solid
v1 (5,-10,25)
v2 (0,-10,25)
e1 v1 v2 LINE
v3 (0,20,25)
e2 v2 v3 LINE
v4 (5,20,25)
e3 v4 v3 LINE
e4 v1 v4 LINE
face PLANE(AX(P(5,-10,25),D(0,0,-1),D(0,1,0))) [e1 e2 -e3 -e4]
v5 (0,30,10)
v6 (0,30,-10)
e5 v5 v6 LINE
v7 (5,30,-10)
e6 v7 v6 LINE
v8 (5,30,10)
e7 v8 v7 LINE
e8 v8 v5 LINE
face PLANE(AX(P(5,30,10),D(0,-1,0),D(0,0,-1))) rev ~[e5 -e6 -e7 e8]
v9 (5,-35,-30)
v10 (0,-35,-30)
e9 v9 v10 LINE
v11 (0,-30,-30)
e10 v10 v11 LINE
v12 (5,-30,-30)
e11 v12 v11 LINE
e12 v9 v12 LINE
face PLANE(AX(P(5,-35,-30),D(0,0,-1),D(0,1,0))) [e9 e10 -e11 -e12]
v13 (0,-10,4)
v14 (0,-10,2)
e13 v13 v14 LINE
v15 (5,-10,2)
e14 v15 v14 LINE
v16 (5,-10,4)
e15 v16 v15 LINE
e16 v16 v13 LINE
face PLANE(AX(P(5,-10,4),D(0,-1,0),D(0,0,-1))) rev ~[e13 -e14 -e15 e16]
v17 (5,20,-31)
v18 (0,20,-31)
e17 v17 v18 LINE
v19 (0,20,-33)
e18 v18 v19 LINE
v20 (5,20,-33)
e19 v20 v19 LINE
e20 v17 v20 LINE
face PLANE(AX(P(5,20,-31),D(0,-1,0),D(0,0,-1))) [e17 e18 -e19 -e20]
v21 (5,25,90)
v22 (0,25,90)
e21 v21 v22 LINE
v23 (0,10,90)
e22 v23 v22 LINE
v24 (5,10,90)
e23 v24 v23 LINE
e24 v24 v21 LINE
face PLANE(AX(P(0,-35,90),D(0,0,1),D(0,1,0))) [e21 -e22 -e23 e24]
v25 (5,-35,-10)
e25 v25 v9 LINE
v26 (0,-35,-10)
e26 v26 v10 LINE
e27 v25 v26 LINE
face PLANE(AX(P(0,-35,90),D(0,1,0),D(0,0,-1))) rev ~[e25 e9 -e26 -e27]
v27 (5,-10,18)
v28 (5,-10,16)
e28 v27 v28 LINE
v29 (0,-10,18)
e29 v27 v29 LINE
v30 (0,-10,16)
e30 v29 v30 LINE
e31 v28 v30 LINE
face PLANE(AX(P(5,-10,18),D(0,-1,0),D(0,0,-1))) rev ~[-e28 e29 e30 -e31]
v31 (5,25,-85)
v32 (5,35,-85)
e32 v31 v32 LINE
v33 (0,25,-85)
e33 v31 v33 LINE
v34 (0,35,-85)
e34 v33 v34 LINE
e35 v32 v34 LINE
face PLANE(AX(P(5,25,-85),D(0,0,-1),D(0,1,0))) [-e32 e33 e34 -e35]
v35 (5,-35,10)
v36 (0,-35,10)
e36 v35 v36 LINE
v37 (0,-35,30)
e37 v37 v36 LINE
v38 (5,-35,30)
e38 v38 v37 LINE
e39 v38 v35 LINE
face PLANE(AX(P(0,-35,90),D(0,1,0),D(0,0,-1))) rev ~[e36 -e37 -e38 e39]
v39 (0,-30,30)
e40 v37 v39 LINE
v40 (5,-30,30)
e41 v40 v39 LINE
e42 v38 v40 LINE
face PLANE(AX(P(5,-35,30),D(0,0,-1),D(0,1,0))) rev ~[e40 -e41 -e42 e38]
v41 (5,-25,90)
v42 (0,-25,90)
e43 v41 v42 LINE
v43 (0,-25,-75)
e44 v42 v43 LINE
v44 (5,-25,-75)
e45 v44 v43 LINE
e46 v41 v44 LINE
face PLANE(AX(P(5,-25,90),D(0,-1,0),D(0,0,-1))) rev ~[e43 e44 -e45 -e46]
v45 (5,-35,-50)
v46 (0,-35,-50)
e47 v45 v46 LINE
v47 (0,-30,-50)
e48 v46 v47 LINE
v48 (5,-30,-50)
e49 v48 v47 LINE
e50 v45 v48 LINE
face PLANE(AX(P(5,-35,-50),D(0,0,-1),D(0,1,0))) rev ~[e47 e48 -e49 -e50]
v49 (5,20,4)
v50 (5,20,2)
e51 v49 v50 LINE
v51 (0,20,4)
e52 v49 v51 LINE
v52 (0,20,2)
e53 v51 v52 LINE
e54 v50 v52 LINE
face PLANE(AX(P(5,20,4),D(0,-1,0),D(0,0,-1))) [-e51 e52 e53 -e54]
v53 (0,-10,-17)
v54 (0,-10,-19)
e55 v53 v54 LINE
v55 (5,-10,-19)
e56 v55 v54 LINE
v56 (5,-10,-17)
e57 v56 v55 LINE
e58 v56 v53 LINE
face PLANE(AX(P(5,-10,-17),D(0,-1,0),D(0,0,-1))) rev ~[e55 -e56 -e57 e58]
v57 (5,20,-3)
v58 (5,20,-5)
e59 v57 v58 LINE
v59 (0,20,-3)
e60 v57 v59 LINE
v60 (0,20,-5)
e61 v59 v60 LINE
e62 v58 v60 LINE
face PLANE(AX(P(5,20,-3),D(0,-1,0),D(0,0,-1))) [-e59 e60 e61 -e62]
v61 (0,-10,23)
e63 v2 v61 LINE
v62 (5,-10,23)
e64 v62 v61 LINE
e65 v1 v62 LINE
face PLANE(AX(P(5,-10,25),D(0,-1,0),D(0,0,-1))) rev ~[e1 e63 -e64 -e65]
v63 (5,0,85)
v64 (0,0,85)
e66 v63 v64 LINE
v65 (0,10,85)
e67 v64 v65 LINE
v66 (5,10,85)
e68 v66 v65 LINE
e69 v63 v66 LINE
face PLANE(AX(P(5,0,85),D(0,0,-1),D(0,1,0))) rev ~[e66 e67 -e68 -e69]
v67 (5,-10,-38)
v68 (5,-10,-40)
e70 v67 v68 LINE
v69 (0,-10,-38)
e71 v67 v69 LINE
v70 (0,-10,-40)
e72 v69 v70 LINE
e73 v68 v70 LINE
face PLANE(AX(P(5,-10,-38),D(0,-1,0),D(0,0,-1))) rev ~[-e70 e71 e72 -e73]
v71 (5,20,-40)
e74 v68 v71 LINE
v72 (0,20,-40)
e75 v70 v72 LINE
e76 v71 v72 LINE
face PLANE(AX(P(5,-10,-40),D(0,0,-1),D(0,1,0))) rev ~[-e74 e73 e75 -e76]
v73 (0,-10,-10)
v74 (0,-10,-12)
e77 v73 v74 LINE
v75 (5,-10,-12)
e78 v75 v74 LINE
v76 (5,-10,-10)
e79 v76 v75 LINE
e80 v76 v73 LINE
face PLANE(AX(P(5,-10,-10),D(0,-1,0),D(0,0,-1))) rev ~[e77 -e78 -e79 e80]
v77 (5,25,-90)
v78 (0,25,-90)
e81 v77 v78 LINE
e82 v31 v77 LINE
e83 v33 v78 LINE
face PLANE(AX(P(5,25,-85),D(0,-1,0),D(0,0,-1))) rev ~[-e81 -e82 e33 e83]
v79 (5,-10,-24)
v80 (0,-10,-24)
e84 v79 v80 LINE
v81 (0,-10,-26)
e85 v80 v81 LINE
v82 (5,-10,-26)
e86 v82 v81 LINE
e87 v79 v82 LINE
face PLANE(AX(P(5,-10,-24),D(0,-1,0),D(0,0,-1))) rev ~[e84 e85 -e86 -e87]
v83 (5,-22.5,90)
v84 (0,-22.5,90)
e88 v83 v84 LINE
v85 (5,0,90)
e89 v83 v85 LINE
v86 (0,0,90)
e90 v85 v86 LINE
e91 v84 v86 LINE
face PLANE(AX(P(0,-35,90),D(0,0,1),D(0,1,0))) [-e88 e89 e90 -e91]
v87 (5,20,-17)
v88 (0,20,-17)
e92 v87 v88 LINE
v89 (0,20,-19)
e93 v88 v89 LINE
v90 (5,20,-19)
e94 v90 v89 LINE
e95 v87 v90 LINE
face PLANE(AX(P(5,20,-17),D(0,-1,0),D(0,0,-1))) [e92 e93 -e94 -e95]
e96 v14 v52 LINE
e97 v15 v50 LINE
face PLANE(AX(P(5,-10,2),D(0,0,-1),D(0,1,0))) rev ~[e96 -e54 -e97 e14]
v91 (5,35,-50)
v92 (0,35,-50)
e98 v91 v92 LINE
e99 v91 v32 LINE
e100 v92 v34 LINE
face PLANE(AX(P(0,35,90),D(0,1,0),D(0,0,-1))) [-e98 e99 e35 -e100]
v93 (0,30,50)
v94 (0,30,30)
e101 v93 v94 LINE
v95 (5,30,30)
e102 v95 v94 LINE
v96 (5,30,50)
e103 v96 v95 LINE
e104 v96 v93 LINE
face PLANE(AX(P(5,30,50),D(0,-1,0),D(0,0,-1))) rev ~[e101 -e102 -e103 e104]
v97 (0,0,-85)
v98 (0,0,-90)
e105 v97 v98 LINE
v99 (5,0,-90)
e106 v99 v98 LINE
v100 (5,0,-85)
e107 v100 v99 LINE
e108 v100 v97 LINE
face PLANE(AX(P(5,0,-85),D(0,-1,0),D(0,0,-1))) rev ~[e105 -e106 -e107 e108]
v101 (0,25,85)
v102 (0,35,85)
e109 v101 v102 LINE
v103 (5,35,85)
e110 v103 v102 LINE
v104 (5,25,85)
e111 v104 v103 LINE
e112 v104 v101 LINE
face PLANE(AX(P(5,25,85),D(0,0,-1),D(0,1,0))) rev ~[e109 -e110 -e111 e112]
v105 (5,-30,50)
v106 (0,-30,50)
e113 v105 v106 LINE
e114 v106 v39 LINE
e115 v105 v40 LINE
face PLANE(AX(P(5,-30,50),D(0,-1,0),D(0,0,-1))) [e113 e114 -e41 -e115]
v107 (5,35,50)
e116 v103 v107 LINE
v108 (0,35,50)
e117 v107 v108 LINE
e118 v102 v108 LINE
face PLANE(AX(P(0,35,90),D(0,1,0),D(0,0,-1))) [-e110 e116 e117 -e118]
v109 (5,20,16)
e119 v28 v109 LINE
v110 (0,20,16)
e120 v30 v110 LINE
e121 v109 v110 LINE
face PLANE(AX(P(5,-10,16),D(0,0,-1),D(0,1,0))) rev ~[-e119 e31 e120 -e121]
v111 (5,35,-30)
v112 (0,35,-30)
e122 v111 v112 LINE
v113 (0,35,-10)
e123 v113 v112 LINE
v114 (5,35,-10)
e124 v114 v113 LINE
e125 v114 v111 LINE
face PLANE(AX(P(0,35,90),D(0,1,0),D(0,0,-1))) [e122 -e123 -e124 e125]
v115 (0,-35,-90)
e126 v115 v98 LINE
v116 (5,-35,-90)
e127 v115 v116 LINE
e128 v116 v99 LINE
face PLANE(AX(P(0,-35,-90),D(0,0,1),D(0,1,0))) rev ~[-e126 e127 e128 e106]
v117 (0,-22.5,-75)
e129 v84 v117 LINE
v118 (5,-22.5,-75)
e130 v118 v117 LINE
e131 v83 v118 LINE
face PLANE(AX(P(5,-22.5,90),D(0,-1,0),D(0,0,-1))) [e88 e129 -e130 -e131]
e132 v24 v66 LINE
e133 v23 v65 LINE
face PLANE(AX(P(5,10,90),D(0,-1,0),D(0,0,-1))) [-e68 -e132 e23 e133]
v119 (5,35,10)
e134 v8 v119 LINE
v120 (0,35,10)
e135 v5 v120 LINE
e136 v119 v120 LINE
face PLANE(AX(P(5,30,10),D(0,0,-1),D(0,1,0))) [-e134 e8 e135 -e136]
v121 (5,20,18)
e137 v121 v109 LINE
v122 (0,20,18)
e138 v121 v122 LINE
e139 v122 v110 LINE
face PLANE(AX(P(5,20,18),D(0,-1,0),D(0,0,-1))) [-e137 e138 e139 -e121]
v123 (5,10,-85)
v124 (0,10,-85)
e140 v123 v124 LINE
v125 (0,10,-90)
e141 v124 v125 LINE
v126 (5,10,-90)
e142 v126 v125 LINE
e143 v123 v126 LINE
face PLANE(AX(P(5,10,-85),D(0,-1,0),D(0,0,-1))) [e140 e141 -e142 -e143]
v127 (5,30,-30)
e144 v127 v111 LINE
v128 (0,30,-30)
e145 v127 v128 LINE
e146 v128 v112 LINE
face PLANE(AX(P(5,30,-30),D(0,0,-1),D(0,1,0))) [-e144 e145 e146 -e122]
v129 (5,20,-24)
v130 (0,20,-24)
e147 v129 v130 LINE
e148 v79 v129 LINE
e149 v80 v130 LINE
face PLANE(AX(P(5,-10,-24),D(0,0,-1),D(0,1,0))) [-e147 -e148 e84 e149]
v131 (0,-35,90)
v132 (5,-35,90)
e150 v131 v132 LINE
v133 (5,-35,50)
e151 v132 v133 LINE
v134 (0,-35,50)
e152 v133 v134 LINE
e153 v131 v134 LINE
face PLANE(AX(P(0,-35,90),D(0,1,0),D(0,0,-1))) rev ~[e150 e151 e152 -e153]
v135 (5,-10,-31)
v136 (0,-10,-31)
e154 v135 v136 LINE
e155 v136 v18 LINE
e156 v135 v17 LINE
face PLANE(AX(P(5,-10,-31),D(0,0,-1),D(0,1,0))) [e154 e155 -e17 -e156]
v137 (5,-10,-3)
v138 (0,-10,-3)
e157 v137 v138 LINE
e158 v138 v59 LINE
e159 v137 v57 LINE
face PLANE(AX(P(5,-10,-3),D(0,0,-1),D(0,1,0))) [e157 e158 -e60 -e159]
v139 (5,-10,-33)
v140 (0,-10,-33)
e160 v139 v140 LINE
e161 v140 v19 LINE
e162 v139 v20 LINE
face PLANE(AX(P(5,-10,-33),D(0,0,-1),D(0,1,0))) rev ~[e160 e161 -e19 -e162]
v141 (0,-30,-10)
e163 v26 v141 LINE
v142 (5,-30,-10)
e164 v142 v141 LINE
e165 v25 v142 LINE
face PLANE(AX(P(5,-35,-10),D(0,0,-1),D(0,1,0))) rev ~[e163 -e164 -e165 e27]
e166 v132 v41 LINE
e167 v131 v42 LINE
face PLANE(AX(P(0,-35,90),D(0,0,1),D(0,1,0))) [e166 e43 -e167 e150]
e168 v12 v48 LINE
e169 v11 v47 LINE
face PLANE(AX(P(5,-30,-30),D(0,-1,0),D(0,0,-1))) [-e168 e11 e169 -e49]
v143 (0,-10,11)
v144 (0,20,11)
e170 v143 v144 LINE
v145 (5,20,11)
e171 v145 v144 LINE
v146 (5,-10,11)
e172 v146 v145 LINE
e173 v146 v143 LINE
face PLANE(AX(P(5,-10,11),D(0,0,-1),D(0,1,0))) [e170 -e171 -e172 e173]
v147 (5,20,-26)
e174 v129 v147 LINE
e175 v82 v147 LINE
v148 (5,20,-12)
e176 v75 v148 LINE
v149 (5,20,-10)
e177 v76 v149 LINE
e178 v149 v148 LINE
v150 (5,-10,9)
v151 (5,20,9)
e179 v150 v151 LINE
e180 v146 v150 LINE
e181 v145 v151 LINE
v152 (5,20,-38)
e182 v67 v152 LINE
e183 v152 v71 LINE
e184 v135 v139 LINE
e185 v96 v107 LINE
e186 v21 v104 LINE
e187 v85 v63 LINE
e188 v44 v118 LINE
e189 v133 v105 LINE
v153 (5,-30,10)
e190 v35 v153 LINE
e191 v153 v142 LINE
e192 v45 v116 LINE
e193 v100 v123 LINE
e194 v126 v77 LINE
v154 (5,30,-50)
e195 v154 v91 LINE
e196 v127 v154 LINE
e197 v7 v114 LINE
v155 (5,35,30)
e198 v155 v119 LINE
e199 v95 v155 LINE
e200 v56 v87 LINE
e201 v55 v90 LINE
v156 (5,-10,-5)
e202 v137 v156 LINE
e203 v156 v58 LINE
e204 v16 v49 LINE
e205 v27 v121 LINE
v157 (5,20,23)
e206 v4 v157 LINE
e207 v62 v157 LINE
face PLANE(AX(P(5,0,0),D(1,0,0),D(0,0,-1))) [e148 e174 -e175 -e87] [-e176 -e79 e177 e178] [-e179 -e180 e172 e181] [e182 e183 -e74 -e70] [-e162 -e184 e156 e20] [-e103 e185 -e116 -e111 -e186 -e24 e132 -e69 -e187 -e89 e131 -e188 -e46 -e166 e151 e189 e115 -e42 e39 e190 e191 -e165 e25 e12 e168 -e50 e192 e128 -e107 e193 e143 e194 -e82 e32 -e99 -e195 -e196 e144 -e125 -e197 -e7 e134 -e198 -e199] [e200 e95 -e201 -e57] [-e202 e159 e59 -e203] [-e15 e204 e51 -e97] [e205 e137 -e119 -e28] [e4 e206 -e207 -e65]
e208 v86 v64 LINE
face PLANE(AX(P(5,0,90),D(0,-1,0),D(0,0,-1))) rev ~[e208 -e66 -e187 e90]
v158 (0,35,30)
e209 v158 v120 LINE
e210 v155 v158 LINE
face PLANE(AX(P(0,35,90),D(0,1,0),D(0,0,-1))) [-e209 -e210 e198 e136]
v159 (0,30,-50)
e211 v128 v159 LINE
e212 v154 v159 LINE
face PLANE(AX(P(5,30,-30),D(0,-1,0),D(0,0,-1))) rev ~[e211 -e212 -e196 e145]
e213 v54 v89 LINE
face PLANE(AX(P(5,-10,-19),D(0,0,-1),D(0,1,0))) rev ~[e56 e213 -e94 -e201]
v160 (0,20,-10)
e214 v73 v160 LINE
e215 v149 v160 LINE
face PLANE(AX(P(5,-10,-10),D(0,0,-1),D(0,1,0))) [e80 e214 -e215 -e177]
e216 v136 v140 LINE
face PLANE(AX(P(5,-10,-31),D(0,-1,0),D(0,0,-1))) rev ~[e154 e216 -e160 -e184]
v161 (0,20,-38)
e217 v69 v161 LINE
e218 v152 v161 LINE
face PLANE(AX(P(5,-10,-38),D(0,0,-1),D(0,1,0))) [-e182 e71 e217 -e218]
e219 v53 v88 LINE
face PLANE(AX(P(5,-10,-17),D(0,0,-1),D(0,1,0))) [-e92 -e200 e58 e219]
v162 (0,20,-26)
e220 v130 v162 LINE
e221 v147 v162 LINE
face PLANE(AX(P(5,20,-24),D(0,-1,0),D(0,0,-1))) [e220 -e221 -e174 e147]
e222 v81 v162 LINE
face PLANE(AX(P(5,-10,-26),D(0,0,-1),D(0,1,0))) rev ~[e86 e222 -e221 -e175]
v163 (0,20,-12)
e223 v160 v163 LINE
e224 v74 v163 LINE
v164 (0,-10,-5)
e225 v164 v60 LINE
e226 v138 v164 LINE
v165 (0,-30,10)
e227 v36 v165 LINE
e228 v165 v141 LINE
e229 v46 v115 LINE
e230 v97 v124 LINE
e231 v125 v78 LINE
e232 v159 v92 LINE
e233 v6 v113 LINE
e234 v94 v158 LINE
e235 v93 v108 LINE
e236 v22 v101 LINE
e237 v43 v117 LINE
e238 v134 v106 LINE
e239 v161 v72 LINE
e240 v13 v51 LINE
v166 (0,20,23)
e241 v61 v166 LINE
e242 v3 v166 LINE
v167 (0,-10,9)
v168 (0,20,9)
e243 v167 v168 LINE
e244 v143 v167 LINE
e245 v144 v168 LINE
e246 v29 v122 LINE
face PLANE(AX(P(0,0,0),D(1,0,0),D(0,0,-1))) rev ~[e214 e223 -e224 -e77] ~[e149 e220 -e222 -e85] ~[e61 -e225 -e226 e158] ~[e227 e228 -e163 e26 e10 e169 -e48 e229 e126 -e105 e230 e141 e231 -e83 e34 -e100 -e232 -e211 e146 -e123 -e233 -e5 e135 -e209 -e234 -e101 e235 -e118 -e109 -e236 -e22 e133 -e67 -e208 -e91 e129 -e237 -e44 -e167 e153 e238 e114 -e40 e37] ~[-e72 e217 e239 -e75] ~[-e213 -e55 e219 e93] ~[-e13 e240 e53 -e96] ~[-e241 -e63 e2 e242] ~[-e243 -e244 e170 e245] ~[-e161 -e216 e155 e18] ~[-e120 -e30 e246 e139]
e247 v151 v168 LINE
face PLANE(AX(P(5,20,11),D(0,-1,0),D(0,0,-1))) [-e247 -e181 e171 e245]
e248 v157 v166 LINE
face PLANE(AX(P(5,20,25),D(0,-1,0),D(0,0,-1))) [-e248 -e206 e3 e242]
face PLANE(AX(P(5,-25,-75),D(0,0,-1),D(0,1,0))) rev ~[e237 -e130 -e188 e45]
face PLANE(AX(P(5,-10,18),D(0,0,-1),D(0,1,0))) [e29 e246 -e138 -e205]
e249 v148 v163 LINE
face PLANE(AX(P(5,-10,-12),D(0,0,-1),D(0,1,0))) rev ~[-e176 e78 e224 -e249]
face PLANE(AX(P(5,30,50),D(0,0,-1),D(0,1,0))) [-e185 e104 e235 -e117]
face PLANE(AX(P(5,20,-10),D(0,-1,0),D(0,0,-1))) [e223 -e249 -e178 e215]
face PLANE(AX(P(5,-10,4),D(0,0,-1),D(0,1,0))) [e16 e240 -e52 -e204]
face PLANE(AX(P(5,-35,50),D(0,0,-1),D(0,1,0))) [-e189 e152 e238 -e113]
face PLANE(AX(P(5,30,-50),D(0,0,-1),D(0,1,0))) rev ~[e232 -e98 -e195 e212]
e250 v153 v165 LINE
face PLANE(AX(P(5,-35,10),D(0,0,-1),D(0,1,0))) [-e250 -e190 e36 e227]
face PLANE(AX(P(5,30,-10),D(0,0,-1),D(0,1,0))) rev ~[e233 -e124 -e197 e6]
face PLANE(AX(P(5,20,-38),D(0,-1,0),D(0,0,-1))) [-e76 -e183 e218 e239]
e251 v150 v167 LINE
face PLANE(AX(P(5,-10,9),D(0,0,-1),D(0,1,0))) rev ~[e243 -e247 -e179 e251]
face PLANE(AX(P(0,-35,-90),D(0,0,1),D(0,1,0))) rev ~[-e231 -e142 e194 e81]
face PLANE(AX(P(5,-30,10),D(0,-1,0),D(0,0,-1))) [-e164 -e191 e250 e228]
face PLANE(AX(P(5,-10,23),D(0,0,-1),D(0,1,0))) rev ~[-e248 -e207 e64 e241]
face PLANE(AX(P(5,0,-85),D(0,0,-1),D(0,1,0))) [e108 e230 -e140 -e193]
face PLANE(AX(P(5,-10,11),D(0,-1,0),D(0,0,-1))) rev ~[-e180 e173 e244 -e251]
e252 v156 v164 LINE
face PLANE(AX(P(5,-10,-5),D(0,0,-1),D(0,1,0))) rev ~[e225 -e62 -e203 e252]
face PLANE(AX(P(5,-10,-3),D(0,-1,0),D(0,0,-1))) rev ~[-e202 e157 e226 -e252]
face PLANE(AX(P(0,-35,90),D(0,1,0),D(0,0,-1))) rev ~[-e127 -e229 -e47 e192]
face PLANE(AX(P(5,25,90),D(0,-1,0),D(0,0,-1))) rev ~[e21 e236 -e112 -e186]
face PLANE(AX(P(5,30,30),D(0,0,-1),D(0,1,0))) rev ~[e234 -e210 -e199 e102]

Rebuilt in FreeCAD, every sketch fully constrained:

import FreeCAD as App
import Part
import Sketcher

doc = App.newDocument("Part")
params = doc.addObject("Spreadsheet::Sheet", "Params")
for row, (alias, value) in enumerate([
    ("sketch1_width", "70 mm"),
    ("sketch1_height", "180 mm"),
    ("pad1_length", "5 mm"),
    ("sketch2_height", "165 mm"),
    ("sketch2_width", "2.5 mm"),
    ("pocket1_length", "5 mm"),
    ("sketch3_width", "10 mm"),
    ("sketch3_width2", "5 mm"),
    ("sketch3_height", "20 mm"),
    ("pocket2_length", "5 mm"),
    ("sketch4_width", "30 mm"),
    ("sketch4_height", "2 mm"),
    ("pocket3_length", "5 mm"),
], start=1):
    params.set(f"A{row}", alias)
    params.set(f"B{row}", "=" + value)
    params.setAlias(f"B{row}", alias)

body = doc.addObject("PartDesign::Body", "Body")

sketch1 = body.newObject("Sketcher::SketchObject", "Sketch")
sketch1.AttachmentSupport = (doc.getObject("YZ_Plane"), [""])
sketch1.MapMode = "FlatFace"
sketch1.addGeometry(Part.LineSegment(App.Vector(35, 90, 0), App.Vector(-35, 90, 0)), False)
sketch1.addGeometry(Part.LineSegment(App.Vector(-35, 90, 0), App.Vector(-35, -90, 0)), False)
sketch1.addGeometry(Part.LineSegment(App.Vector(-35, -90, 0), App.Vector(35, -90, 0)), False)
sketch1.addGeometry(Part.LineSegment(App.Vector(35, -90, 0), App.Vector(35, 90, 0)), False)
sketch1.addConstraint(Sketcher.Constraint("Coincident", 0, 2, 1, 1))
sketch1.addConstraint(Sketcher.Constraint("Coincident", 1, 2, 2, 1))
sketch1.addConstraint(Sketcher.Constraint("Coincident", 2, 2, 3, 1))
sketch1.addConstraint(Sketcher.Constraint("Coincident", 3, 2, 0, 1))
sketch1.addConstraint(Sketcher.Constraint("Horizontal", 0))
sketch1.addConstraint(Sketcher.Constraint("Vertical", 1))
sketch1.addConstraint(Sketcher.Constraint("Horizontal", 2))
sketch1.addConstraint(Sketcher.Constraint("Vertical", 3))
sketch1.addConstraint(Sketcher.Constraint("Symmetric", 0, 2, 2, 2, -1, 1))
sketch1.addConstraint(Sketcher.Constraint("DistanceX", 0, 2, 0, 1, 70.0))
sketch1.addConstraint(Sketcher.Constraint("DistanceY", 1, 2, 1, 1, 180.0))
sketch1.setExpression("Constraints[9]", "Params.sketch1_width")
sketch1.setExpression("Constraints[10]", "Params.sketch1_height")
pad1 = body.newObject("PartDesign::Pad", "Pad")
pad1.Profile = sketch1
pad1.setExpression("Length", "Params.pad1_length")

sketch2 = body.newObject("Sketcher::SketchObject", "Sketch001")
sketch2.AttachmentSupport = (doc.getObject("YZ_Plane"), [""])
sketch2.MapMode = "FlatFace"
sketch2.AttachmentOffset = App.Placement(App.Vector(0, 0, 5), App.Rotation())
sketch2.addGeometry(Part.LineSegment(App.Vector(-22.5, 90, 0), App.Vector(-25, 90, 0)), False)
sketch2.addGeometry(Part.LineSegment(App.Vector(-25, 90, 0), App.Vector(-25, -75, 0)), False)
sketch2.addGeometry(Part.LineSegment(App.Vector(-25, -75, 0), App.Vector(-22.5, -75, 0)), False)
sketch2.addGeometry(Part.LineSegment(App.Vector(-22.5, -75, 0), App.Vector(-22.5, 90, 0)), False)
sketch2.addConstraint(Sketcher.Constraint("Coincident", 0, 2, 1, 1))
sketch2.addConstraint(Sketcher.Constraint("Coincident", 1, 2, 2, 1))
sketch2.addConstraint(Sketcher.Constraint("Coincident", 2, 2, 3, 1))
sketch2.addConstraint(Sketcher.Constraint("Coincident", 3, 2, 0, 1))
sketch2.addConstraint(Sketcher.Constraint("Horizontal", 0))
sketch2.addConstraint(Sketcher.Constraint("Vertical", 1))
sketch2.addConstraint(Sketcher.Constraint("Horizontal", 2))
sketch2.addConstraint(Sketcher.Constraint("Vertical", 3))
sketch2.addConstraint(Sketcher.Constraint("DistanceY", 1, 2, 1, 1, 165.0))
sketch2.addConstraint(Sketcher.Constraint("DistanceX", 0, 2, 0, 1, 2.5))
sketch2.addConstraint(Sketcher.Constraint("DistanceX", 0, 2, -1, 1, 25.0))
sketch2.addConstraint(Sketcher.Constraint("DistanceY", -1, 1, 0, 2, 90.0))
sketch2.setExpression("Constraints[8]", "Params.sketch2_height")
sketch2.setExpression("Constraints[9]", "Params.sketch2_width")
pocket1 = body.newObject("PartDesign::Pocket", "Pocket")
pocket1.Profile = sketch2
pocket1.setExpression("Length", "Params.pocket1_length")

sketch3 = body.newObject("Sketcher::SketchObject", "Sketch002")
sketch3.AttachmentSupport = (doc.getObject("YZ_Plane"), [""])
sketch3.MapMode = "FlatFace"
sketch3.AttachmentOffset = App.Placement(App.Vector(0, 0, 5), App.Rotation())
sketch3.addGeometry(Part.LineSegment(App.Vector(35, 90, 0), App.Vector(25, 90, 0)), False)
sketch3.addGeometry(Part.LineSegment(App.Vector(25, 90, 0), App.Vector(25, 85, 0)), False)
sketch3.addGeometry(Part.LineSegment(App.Vector(25, 85, 0), App.Vector(35, 85, 0)), False)
sketch3.addGeometry(Part.LineSegment(App.Vector(35, 85, 0), App.Vector(35, 90, 0)), False)
sketch3.addGeometry(Part.LineSegment(App.Vector(10, 90, 0), App.Vector(0, 90, 0)), False)
sketch3.addGeometry(Part.LineSegment(App.Vector(0, 90, 0), App.Vector(0, 85, 0)), False)
sketch3.addGeometry(Part.LineSegment(App.Vector(0, 85, 0), App.Vector(10, 85, 0)), False)
sketch3.addGeometry(Part.LineSegment(App.Vector(10, 85, 0), App.Vector(10, 90, 0)), False)
sketch3.addGeometry(Part.LineSegment(App.Vector(35, -85, 0), App.Vector(25, -85, 0)), False)
sketch3.addGeometry(Part.LineSegment(App.Vector(25, -85, 0), App.Vector(25, -90, 0)), False)
sketch3.addGeometry(Part.LineSegment(App.Vector(25, -90, 0), App.Vector(35, -90, 0)), False)
sketch3.addGeometry(Part.LineSegment(App.Vector(35, -90, 0), App.Vector(35, -85, 0)), False)
sketch3.addGeometry(Part.LineSegment(App.Vector(10, -85, 0), App.Vector(0, -85, 0)), False)
sketch3.addGeometry(Part.LineSegment(App.Vector(0, -85, 0), App.Vector(0, -90, 0)), False)
sketch3.addGeometry(Part.LineSegment(App.Vector(0, -90, 0), App.Vector(10, -90, 0)), False)
sketch3.addGeometry(Part.LineSegment(App.Vector(10, -90, 0), App.Vector(10, -85, 0)), False)
sketch3.addGeometry(Part.LineSegment(App.Vector(35, 50, 0), App.Vector(30, 50, 0)), False)
sketch3.addGeometry(Part.LineSegment(App.Vector(30, 50, 0), App.Vector(30, 30, 0)), False)
sketch3.addGeometry(Part.LineSegment(App.Vector(30, 30, 0), App.Vector(35, 30, 0)), False)
sketch3.addGeometry(Part.LineSegment(App.Vector(35, 30, 0), App.Vector(35, 50, 0)), False)
sketch3.addGeometry(Part.LineSegment(App.Vector(35, -30, 0), App.Vector(30, -30, 0)), False)
sketch3.addGeometry(Part.LineSegment(App.Vector(30, -30, 0), App.Vector(30, -50, 0)), False)
sketch3.addGeometry(Part.LineSegment(App.Vector(30, -50, 0), App.Vector(35, -50, 0)), False)
sketch3.addGeometry(Part.LineSegment(App.Vector(35, -50, 0), App.Vector(35, -30, 0)), False)
sketch3.addGeometry(Part.LineSegment(App.Vector(35, 10, 0), App.Vector(30, 10, 0)), False)
sketch3.addGeometry(Part.LineSegment(App.Vector(30, 10, 0), App.Vector(30, -10, 0)), False)
sketch3.addGeometry(Part.LineSegment(App.Vector(30, -10, 0), App.Vector(35, -10, 0)), False)
sketch3.addGeometry(Part.LineSegment(App.Vector(35, -10, 0), App.Vector(35, 10, 0)), False)
sketch3.addGeometry(Part.LineSegment(App.Vector(-30, 50, 0), App.Vector(-35, 50, 0)), False)
sketch3.addGeometry(Part.LineSegment(App.Vector(-35, 50, 0), App.Vector(-35, 30, 0)), False)
sketch3.addGeometry(Part.LineSegment(App.Vector(-35, 30, 0), App.Vector(-30, 30, 0)), False)
sketch3.addGeometry(Part.LineSegment(App.Vector(-30, 30, 0), App.Vector(-30, 50, 0)), False)
sketch3.addGeometry(Part.LineSegment(App.Vector(-30, 10, 0), App.Vector(-35, 10, 0)), False)
sketch3.addGeometry(Part.LineSegment(App.Vector(-35, 10, 0), App.Vector(-35, -10, 0)), False)
sketch3.addGeometry(Part.LineSegment(App.Vector(-35, -10, 0), App.Vector(-30, -10, 0)), False)
sketch3.addGeometry(Part.LineSegment(App.Vector(-30, -10, 0), App.Vector(-30, 10, 0)), False)
sketch3.addGeometry(Part.LineSegment(App.Vector(-30, -30, 0), App.Vector(-35, -30, 0)), False)
sketch3.addGeometry(Part.LineSegment(App.Vector(-35, -30, 0), App.Vector(-35, -50, 0)), False)
sketch3.addGeometry(Part.LineSegment(App.Vector(-35, -50, 0), App.Vector(-30, -50, 0)), False)
sketch3.addGeometry(Part.LineSegment(App.Vector(-30, -50, 0), App.Vector(-30, -30, 0)), False)
sketch3.addConstraint(Sketcher.Constraint("Coincident", 0, 2, 1, 1))
sketch3.addConstraint(Sketcher.Constraint("Coincident", 1, 2, 2, 1))
sketch3.addConstraint(Sketcher.Constraint("Coincident", 2, 2, 3, 1))
sketch3.addConstraint(Sketcher.Constraint("Coincident", 3, 2, 0, 1))
sketch3.addConstraint(Sketcher.Constraint("Coincident", 4, 2, 5, 1))
sketch3.addConstraint(Sketcher.Constraint("Coincident", 5, 2, 6, 1))
sketch3.addConstraint(Sketcher.Constraint("Coincident", 6, 2, 7, 1))
sketch3.addConstraint(Sketcher.Constraint("Coincident", 7, 2, 4, 1))
sketch3.addConstraint(Sketcher.Constraint("Coincident", 8, 2, 9, 1))
sketch3.addConstraint(Sketcher.Constraint("Coincident", 9, 2, 10, 1))
sketch3.addConstraint(Sketcher.Constraint("Coincident", 10, 2, 11, 1))
sketch3.addConstraint(Sketcher.Constraint("Coincident", 11, 2, 8, 1))
sketch3.addConstraint(Sketcher.Constraint("Coincident", 12, 2, 13, 1))
sketch3.addConstraint(Sketcher.Constraint("Coincident", 13, 2, 14, 1))
sketch3.addConstraint(Sketcher.Constraint("Coincident", 14, 2, 15, 1))
sketch3.addConstraint(Sketcher.Constraint("Coincident", 15, 2, 12, 1))
sketch3.addConstraint(Sketcher.Constraint("Coincident", 16, 2, 17, 1))
sketch3.addConstraint(Sketcher.Constraint("Coincident", 17, 2, 18, 1))
sketch3.addConstraint(Sketcher.Constraint("Coincident", 18, 2, 19, 1))
sketch3.addConstraint(Sketcher.Constraint("Coincident", 19, 2, 16, 1))
sketch3.addConstraint(Sketcher.Constraint("Coincident", 20, 2, 21, 1))
sketch3.addConstraint(Sketcher.Constraint("Coincident", 21, 2, 22, 1))
sketch3.addConstraint(Sketcher.Constraint("Coincident", 22, 2, 23, 1))
sketch3.addConstraint(Sketcher.Constraint("Coincident", 23, 2, 20, 1))
sketch3.addConstraint(Sketcher.Constraint("Coincident", 24, 2, 25, 1))
sketch3.addConstraint(Sketcher.Constraint("Coincident", 25, 2, 26, 1))
sketch3.addConstraint(Sketcher.Constraint("Coincident", 26, 2, 27, 1))
sketch3.addConstraint(Sketcher.Constraint("Coincident", 27, 2, 24, 1))
sketch3.addConstraint(Sketcher.Constraint("Coincident", 28, 2, 29, 1))
sketch3.addConstraint(Sketcher.Constraint("Coincident", 29, 2, 30, 1))
sketch3.addConstraint(Sketcher.Constraint("Coincident", 30, 2, 31, 1))
sketch3.addConstraint(Sketcher.Constraint("Coincident", 31, 2, 28, 1))
sketch3.addConstraint(Sketcher.Constraint("Coincident", 32, 2, 33, 1))
sketch3.addConstraint(Sketcher.Constraint("Coincident", 33, 2, 34, 1))
sketch3.addConstraint(Sketcher.Constraint("Coincident", 34, 2, 35, 1))
sketch3.addConstraint(Sketcher.Constraint("Coincident", 35, 2, 32, 1))
sketch3.addConstraint(Sketcher.Constraint("Coincident", 36, 2, 37, 1))
sketch3.addConstraint(Sketcher.Constraint("Coincident", 37, 2, 38, 1))
sketch3.addConstraint(Sketcher.Constraint("Coincident", 38, 2, 39, 1))
sketch3.addConstraint(Sketcher.Constraint("Coincident", 39, 2, 36, 1))
sketch3.addConstraint(Sketcher.Constraint("Horizontal", 0))
sketch3.addConstraint(Sketcher.Constraint("Vertical", 1))
sketch3.addConstraint(Sketcher.Constraint("Horizontal", 2))
sketch3.addConstraint(Sketcher.Constraint("Vertical", 3))
sketch3.addConstraint(Sketcher.Constraint("Horizontal", 4))
sketch3.addConstraint(Sketcher.Constraint("Vertical", 5))
sketch3.addConstraint(Sketcher.Constraint("Horizontal", 6))
sketch3.addConstraint(Sketcher.Constraint("Vertical", 7))
sketch3.addConstraint(Sketcher.Constraint("Horizontal", 8))
sketch3.addConstraint(Sketcher.Constraint("Vertical", 9))
sketch3.addConstraint(Sketcher.Constraint("Horizontal", 10))
sketch3.addConstraint(Sketcher.Constraint("Vertical", 11))
sketch3.addConstraint(Sketcher.Constraint("Horizontal", 12))
sketch3.addConstraint(Sketcher.Constraint("Vertical", 13))
sketch3.addConstraint(Sketcher.Constraint("Horizontal", 14))
sketch3.addConstraint(Sketcher.Constraint("Vertical", 15))
sketch3.addConstraint(Sketcher.Constraint("Horizontal", 16))
sketch3.addConstraint(Sketcher.Constraint("Vertical", 17))
sketch3.addConstraint(Sketcher.Constraint("Horizontal", 18))
sketch3.addConstraint(Sketcher.Constraint("Vertical", 19))
sketch3.addConstraint(Sketcher.Constraint("Horizontal", 20))
sketch3.addConstraint(Sketcher.Constraint("Vertical", 21))
sketch3.addConstraint(Sketcher.Constraint("Horizontal", 22))
sketch3.addConstraint(Sketcher.Constraint("Vertical", 23))
sketch3.addConstraint(Sketcher.Constraint("Horizontal", 24))
sketch3.addConstraint(Sketcher.Constraint("Vertical", 25))
sketch3.addConstraint(Sketcher.Constraint("Horizontal", 26))
sketch3.addConstraint(Sketcher.Constraint("Vertical", 27))
sketch3.addConstraint(Sketcher.Constraint("Horizontal", 28))
sketch3.addConstraint(Sketcher.Constraint("Vertical", 29))
sketch3.addConstraint(Sketcher.Constraint("Horizontal", 30))
sketch3.addConstraint(Sketcher.Constraint("Vertical", 31))
sketch3.addConstraint(Sketcher.Constraint("Horizontal", 32))
sketch3.addConstraint(Sketcher.Constraint("Vertical", 33))
sketch3.addConstraint(Sketcher.Constraint("Horizontal", 34))
sketch3.addConstraint(Sketcher.Constraint("Vertical", 35))
sketch3.addConstraint(Sketcher.Constraint("Horizontal", 36))
sketch3.addConstraint(Sketcher.Constraint("Vertical", 37))
sketch3.addConstraint(Sketcher.Constraint("Horizontal", 38))
sketch3.addConstraint(Sketcher.Constraint("Vertical", 39))
sketch3.addConstraint(Sketcher.Constraint("Symmetric", 5, 2, 12, 2, -1, 1))
sketch3.addConstraint(Sketcher.Constraint("Symmetric", 22, 2, 28, 2, -1, 1))
sketch3.addConstraint(Sketcher.Constraint("Symmetric", 20, 2, 30, 2, -1, 1))
sketch3.addConstraint(Sketcher.Constraint("Symmetric", 26, 2, 32, 2, -1, 1))
sketch3.addConstraint(Sketcher.Constraint("Symmetric", 24, 2, 34, 2, -1, 1))
sketch3.addConstraint(Sketcher.Constraint("Symmetric", 18, 2, 36, 2, -1, 1))
sketch3.addConstraint(Sketcher.Constraint("Symmetric", 16, 2, 38, 2, -1, 1))
sketch3.addConstraint(Sketcher.Constraint("Symmetric", 19, 2, 28, 2, -2))
sketch3.addConstraint(Sketcher.Constraint("Symmetric", 17, 2, 30, 2, -2))
sketch3.addConstraint(Sketcher.Constraint("Symmetric", 1, 2, 8, 2, -1))
sketch3.addConstraint(Sketcher.Constraint("Symmetric", 3, 2, 10, 2, -1))
sketch3.addConstraint(Sketcher.Constraint("Symmetric", 4, 2, 13, 2, -1))
sketch3.addConstraint(Sketcher.Constraint("Horizontal", 3, 2, 4, 2))
sketch3.addConstraint(Sketcher.Constraint("Horizontal", 2, 2, 5, 2))
sketch3.addConstraint(Sketcher.Constraint("Horizontal", 27, 2, 32, 2))
sketch3.addConstraint(Sketcher.Constraint("Vertical", 7, 2, 14, 2))
sketch3.addConstraint(Sketcher.Constraint("Vertical", 11, 2, 18, 2))
sketch3.addConstraint(Sketcher.Constraint("Vertical", 21, 2, 24, 2))
sketch3.addConstraint(Sketcher.Constraint("Vertical", 23, 2, 26, 2))
sketch3.addConstraint(Sketcher.Constraint("Equal", 2, 4))
sketch3.addConstraint(Sketcher.Constraint("Equal", 38, 1))
sketch3.addConstraint(Sketcher.Constraint("Equal", 23, 25))
sketch3.addConstraint(Sketcher.Constraint("DistanceX", 0, 2, 0, 1, 10.0))
sketch3.addConstraint(Sketcher.Constraint("DistanceX", 16, 2, 16, 1, 5.0))
sketch3.addConstraint(Sketcher.Constraint("DistanceY", 17, 2, 17, 1, 20.0))
sketch3.addConstraint(Sketcher.Constraint("DistanceX", -1, 1, 0, 2, 25.0))
sketch3.addConstraint(Sketcher.Constraint("DistanceY", -1, 1, 0, 2, 90.0))
sketch3.addConstraint(Sketcher.Constraint("DistanceY", -1, 1, 16, 2, 50.0))
sketch3.setExpression("Constraints[102]", "Params.sketch3_width")
sketch3.setExpression("Constraints[103]", "Params.sketch3_width2")
sketch3.setExpression("Constraints[104]", "Params.sketch3_height")
pocket2 = body.newObject("PartDesign::Pocket", "Pocket001")
pocket2.Profile = sketch3
pocket2.setExpression("Length", "Params.pocket2_length")

sketch4 = body.newObject("Sketcher::SketchObject", "Sketch003")
sketch4.AttachmentSupport = (doc.getObject("YZ_Plane"), [""])
sketch4.MapMode = "FlatFace"
sketch4.AttachmentOffset = App.Placement(App.Vector(0, 0, 5), App.Rotation())
sketch4.addGeometry(Part.LineSegment(App.Vector(20, -31, 0), App.Vector(-10, -31, 0)), False)
sketch4.addGeometry(Part.LineSegment(App.Vector(-10, -31, 0), App.Vector(-10, -33, 0)), False)
sketch4.addGeometry(Part.LineSegment(App.Vector(-10, -33, 0), App.Vector(20, -33, 0)), False)
sketch4.addGeometry(Part.LineSegment(App.Vector(20, -33, 0), App.Vector(20, -31, 0)), False)
sketch4.addGeometry(Part.LineSegment(App.Vector(20, -38, 0), App.Vector(-10, -38, 0)), False)
sketch4.addGeometry(Part.LineSegment(App.Vector(-10, -38, 0), App.Vector(-10, -40, 0)), False)
sketch4.addGeometry(Part.LineSegment(App.Vector(-10, -40, 0), App.Vector(20, -40, 0)), False)
sketch4.addGeometry(Part.LineSegment(App.Vector(20, -40, 0), App.Vector(20, -38, 0)), False)
sketch4.addGeometry(Part.LineSegment(App.Vector(20, -24, 0), App.Vector(-10, -24, 0)), False)
sketch4.addGeometry(Part.LineSegment(App.Vector(-10, -24, 0), App.Vector(-10, -26, 0)), False)
sketch4.addGeometry(Part.LineSegment(App.Vector(-10, -26, 0), App.Vector(20, -26, 0)), False)
sketch4.addGeometry(Part.LineSegment(App.Vector(20, -26, 0), App.Vector(20, -24, 0)), False)
sketch4.addGeometry(Part.LineSegment(App.Vector(20, -17, 0), App.Vector(-10, -17, 0)), False)
sketch4.addGeometry(Part.LineSegment(App.Vector(-10, -17, 0), App.Vector(-10, -19, 0)), False)
sketch4.addGeometry(Part.LineSegment(App.Vector(-10, -19, 0), App.Vector(20, -19, 0)), False)
sketch4.addGeometry(Part.LineSegment(App.Vector(20, -19, 0), App.Vector(20, -17, 0)), False)
sketch4.addGeometry(Part.LineSegment(App.Vector(20, -10, 0), App.Vector(-10, -10, 0)), False)
sketch4.addGeometry(Part.LineSegment(App.Vector(-10, -10, 0), App.Vector(-10, -12, 0)), False)
sketch4.addGeometry(Part.LineSegment(App.Vector(-10, -12, 0), App.Vector(20, -12, 0)), False)
sketch4.addGeometry(Part.LineSegment(App.Vector(20, -12, 0), App.Vector(20, -10, 0)), False)
sketch4.addGeometry(Part.LineSegment(App.Vector(20, -3, 0), App.Vector(-10, -3, 0)), False)
sketch4.addGeometry(Part.LineSegment(App.Vector(-10, -3, 0), App.Vector(-10, -5, 0)), False)
sketch4.addGeometry(Part.LineSegment(App.Vector(-10, -5, 0), App.Vector(20, -5, 0)), False)
sketch4.addGeometry(Part.LineSegment(App.Vector(20, -5, 0), App.Vector(20, -3, 0)), False)
sketch4.addGeometry(Part.LineSegment(App.Vector(20, 4, 0), App.Vector(-10, 4, 0)), False)
sketch4.addGeometry(Part.LineSegment(App.Vector(-10, 4, 0), App.Vector(-10, 2, 0)), False)
sketch4.addGeometry(Part.LineSegment(App.Vector(-10, 2, 0), App.Vector(20, 2, 0)), False)
sketch4.addGeometry(Part.LineSegment(App.Vector(20, 2, 0), App.Vector(20, 4, 0)), False)
sketch4.addGeometry(Part.LineSegment(App.Vector(20, 11, 0), App.Vector(-10, 11, 0)), False)
sketch4.addGeometry(Part.LineSegment(App.Vector(-10, 11, 0), App.Vector(-10, 9, 0)), False)
sketch4.addGeometry(Part.LineSegment(App.Vector(-10, 9, 0), App.Vector(20, 9, 0)), False)
sketch4.addGeometry(Part.LineSegment(App.Vector(20, 9, 0), App.Vector(20, 11, 0)), False)
sketch4.addGeometry(Part.LineSegment(App.Vector(20, 18, 0), App.Vector(-10, 18, 0)), False)
sketch4.addGeometry(Part.LineSegment(App.Vector(-10, 18, 0), App.Vector(-10, 16, 0)), False)
sketch4.addGeometry(Part.LineSegment(App.Vector(-10, 16, 0), App.Vector(20, 16, 0)), False)
sketch4.addGeometry(Part.LineSegment(App.Vector(20, 16, 0), App.Vector(20, 18, 0)), False)
sketch4.addGeometry(Part.LineSegment(App.Vector(20, 25, 0), App.Vector(-10, 25, 0)), False)
sketch4.addGeometry(Part.LineSegment(App.Vector(-10, 25, 0), App.Vector(-10, 23, 0)), False)
sketch4.addGeometry(Part.LineSegment(App.Vector(-10, 23, 0), App.Vector(20, 23, 0)), False)
sketch4.addGeometry(Part.LineSegment(App.Vector(20, 23, 0), App.Vector(20, 25, 0)), False)
sketch4.addConstraint(Sketcher.Constraint("Coincident", 0, 2, 1, 1))
sketch4.addConstraint(Sketcher.Constraint("Coincident", 1, 2, 2, 1))
sketch4.addConstraint(Sketcher.Constraint("Coincident", 2, 2, 3, 1))
sketch4.addConstraint(Sketcher.Constraint("Coincident", 3, 2, 0, 1))
sketch4.addConstraint(Sketcher.Constraint("Coincident", 4, 2, 5, 1))
sketch4.addConstraint(Sketcher.Constraint("Coincident", 5, 2, 6, 1))
sketch4.addConstraint(Sketcher.Constraint("Coincident", 6, 2, 7, 1))
sketch4.addConstraint(Sketcher.Constraint("Coincident", 7, 2, 4, 1))
sketch4.addConstraint(Sketcher.Constraint("Coincident", 8, 2, 9, 1))
sketch4.addConstraint(Sketcher.Constraint("Coincident", 9, 2, 10, 1))
sketch4.addConstraint(Sketcher.Constraint("Coincident", 10, 2, 11, 1))
sketch4.addConstraint(Sketcher.Constraint("Coincident", 11, 2, 8, 1))
sketch4.addConstraint(Sketcher.Constraint("Coincident", 12, 2, 13, 1))
sketch4.addConstraint(Sketcher.Constraint("Coincident", 13, 2, 14, 1))
sketch4.addConstraint(Sketcher.Constraint("Coincident", 14, 2, 15, 1))
sketch4.addConstraint(Sketcher.Constraint("Coincident", 15, 2, 12, 1))
sketch4.addConstraint(Sketcher.Constraint("Coincident", 16, 2, 17, 1))
sketch4.addConstraint(Sketcher.Constraint("Coincident", 17, 2, 18, 1))
sketch4.addConstraint(Sketcher.Constraint("Coincident", 18, 2, 19, 1))
sketch4.addConstraint(Sketcher.Constraint("Coincident", 19, 2, 16, 1))
sketch4.addConstraint(Sketcher.Constraint("Coincident", 20, 2, 21, 1))
sketch4.addConstraint(Sketcher.Constraint("Coincident", 21, 2, 22, 1))
sketch4.addConstraint(Sketcher.Constraint("Coincident", 22, 2, 23, 1))
sketch4.addConstraint(Sketcher.Constraint("Coincident", 23, 2, 20, 1))
sketch4.addConstraint(Sketcher.Constraint("Coincident", 24, 2, 25, 1))
sketch4.addConstraint(Sketcher.Constraint("Coincident", 25, 2, 26, 1))
sketch4.addConstraint(Sketcher.Constraint("Coincident", 26, 2, 27, 1))
sketch4.addConstraint(Sketcher.Constraint("Coincident", 27, 2, 24, 1))
sketch4.addConstraint(Sketcher.Constraint("Coincident", 28, 2, 29, 1))
sketch4.addConstraint(Sketcher.Constraint("Coincident", 29, 2, 30, 1))
sketch4.addConstraint(Sketcher.Constraint("Coincident", 30, 2, 31, 1))
sketch4.addConstraint(Sketcher.Constraint("Coincident", 31, 2, 28, 1))
sketch4.addConstraint(Sketcher.Constraint("Coincident", 32, 2, 33, 1))
sketch4.addConstraint(Sketcher.Constraint("Coincident", 33, 2, 34, 1))
sketch4.addConstraint(Sketcher.Constraint("Coincident", 34, 2, 35, 1))
sketch4.addConstraint(Sketcher.Constraint("Coincident", 35, 2, 32, 1))
sketch4.addConstraint(Sketcher.Constraint("Coincident", 36, 2, 37, 1))
sketch4.addConstraint(Sketcher.Constraint("Coincident", 37, 2, 38, 1))
sketch4.addConstraint(Sketcher.Constraint("Coincident", 38, 2, 39, 1))
sketch4.addConstraint(Sketcher.Constraint("Coincident", 39, 2, 36, 1))
sketch4.addConstraint(Sketcher.Constraint("Horizontal", 0))
sketch4.addConstraint(Sketcher.Constraint("Vertical", 1))
sketch4.addConstraint(Sketcher.Constraint("Horizontal", 2))
sketch4.addConstraint(Sketcher.Constraint("Vertical", 3))
sketch4.addConstraint(Sketcher.Constraint("Horizontal", 4))
sketch4.addConstraint(Sketcher.Constraint("Vertical", 5))
sketch4.addConstraint(Sketcher.Constraint("Horizontal", 6))
sketch4.addConstraint(Sketcher.Constraint("Vertical", 7))
sketch4.addConstraint(Sketcher.Constraint("Horizontal", 8))
sketch4.addConstraint(Sketcher.Constraint("Vertical", 9))
sketch4.addConstraint(Sketcher.Constraint("Horizontal", 10))
sketch4.addConstraint(Sketcher.Constraint("Vertical", 11))
sketch4.addConstraint(Sketcher.Constraint("Horizontal", 12))
sketch4.addConstraint(Sketcher.Constraint("Vertical", 13))
sketch4.addConstraint(Sketcher.Constraint("Horizontal", 14))
sketch4.addConstraint(Sketcher.Constraint("Vertical", 15))
sketch4.addConstraint(Sketcher.Constraint("Horizontal", 16))
sketch4.addConstraint(Sketcher.Constraint("Vertical", 17))
sketch4.addConstraint(Sketcher.Constraint("Horizontal", 18))
sketch4.addConstraint(Sketcher.Constraint("Vertical", 19))
sketch4.addConstraint(Sketcher.Constraint("Horizontal", 20))
sketch4.addConstraint(Sketcher.Constraint("Vertical", 21))
sketch4.addConstraint(Sketcher.Constraint("Horizontal", 22))
sketch4.addConstraint(Sketcher.Constraint("Vertical", 23))
sketch4.addConstraint(Sketcher.Constraint("Horizontal", 24))
sketch4.addConstraint(Sketcher.Constraint("Vertical", 25))
sketch4.addConstraint(Sketcher.Constraint("Horizontal", 26))
sketch4.addConstraint(Sketcher.Constraint("Vertical", 27))
sketch4.addConstraint(Sketcher.Constraint("Horizontal", 28))
sketch4.addConstraint(Sketcher.Constraint("Vertical", 29))
sketch4.addConstraint(Sketcher.Constraint("Horizontal", 30))
sketch4.addConstraint(Sketcher.Constraint("Vertical", 31))
sketch4.addConstraint(Sketcher.Constraint("Horizontal", 32))
sketch4.addConstraint(Sketcher.Constraint("Vertical", 33))
sketch4.addConstraint(Sketcher.Constraint("Horizontal", 34))
sketch4.addConstraint(Sketcher.Constraint("Vertical", 35))
sketch4.addConstraint(Sketcher.Constraint("Horizontal", 36))
sketch4.addConstraint(Sketcher.Constraint("Vertical", 37))
sketch4.addConstraint(Sketcher.Constraint("Horizontal", 38))
sketch4.addConstraint(Sketcher.Constraint("Vertical", 39))
sketch4.addConstraint(Sketcher.Constraint("Vertical", 1, 2, 4, 2))
sketch4.addConstraint(Sketcher.Constraint("Vertical", 3, 2, 6, 2))
sketch4.addConstraint(Sketcher.Constraint("Vertical", 5, 2, 8, 2))
sketch4.addConstraint(Sketcher.Constraint("Vertical", 7, 2, 10, 2))
sketch4.addConstraint(Sketcher.Constraint("Vertical", 9, 2, 12, 2))
sketch4.addConstraint(Sketcher.Constraint("Vertical", 11, 2, 14, 2))
sketch4.addConstraint(Sketcher.Constraint("Vertical", 13, 2, 16, 2))
sketch4.addConstraint(Sketcher.Constraint("Vertical", 15, 2, 18, 2))
sketch4.addConstraint(Sketcher.Constraint("Vertical", 17, 2, 20, 2))
sketch4.addConstraint(Sketcher.Constraint("Vertical", 19, 2, 22, 2))
sketch4.addConstraint(Sketcher.Constraint("Vertical", 21, 2, 24, 2))
sketch4.addConstraint(Sketcher.Constraint("Vertical", 23, 2, 26, 2))
sketch4.addConstraint(Sketcher.Constraint("Vertical", 25, 2, 28, 2))
sketch4.addConstraint(Sketcher.Constraint("Vertical", 27, 2, 30, 2))
sketch4.addConstraint(Sketcher.Constraint("Vertical", 29, 2, 32, 2))
sketch4.addConstraint(Sketcher.Constraint("Vertical", 31, 2, 34, 2))
sketch4.addConstraint(Sketcher.Constraint("Vertical", 33, 2, 36, 2))
sketch4.addConstraint(Sketcher.Constraint("Vertical", 35, 2, 38, 2))
sketch4.addConstraint(Sketcher.Constraint("Equal", 3, 5))
sketch4.addConstraint(Sketcher.Constraint("Equal", 7, 9))
sketch4.addConstraint(Sketcher.Constraint("Equal", 11, 13))
sketch4.addConstraint(Sketcher.Constraint("Equal", 15, 17))
sketch4.addConstraint(Sketcher.Constraint("Equal", 19, 21))
sketch4.addConstraint(Sketcher.Constraint("Equal", 23, 25))
sketch4.addConstraint(Sketcher.Constraint("Equal", 27, 29))
sketch4.addConstraint(Sketcher.Constraint("Equal", 31, 33))
sketch4.addConstraint(Sketcher.Constraint("Equal", 35, 37))
sketch4.addConstraint(Sketcher.Constraint("DistanceX", 0, 2, 0, 1, 30.0))
sketch4.addConstraint(Sketcher.Constraint("DistanceY", 1, 2, 1, 1, 2.0))
sketch4.addConstraint(Sketcher.Constraint("DistanceX", 0, 2, -1, 1, 10.0))
sketch4.addConstraint(Sketcher.Constraint("DistanceY", 0, 2, -1, 1, 31.0))
sketch4.addConstraint(Sketcher.Constraint("DistanceY", 4, 2, -1, 1, 38.0))
sketch4.addConstraint(Sketcher.Constraint("DistanceY", 8, 2, -1, 1, 24.0))
sketch4.addConstraint(Sketcher.Constraint("DistanceY", 12, 2, -1, 1, 17.0))
sketch4.addConstraint(Sketcher.Constraint("DistanceY", 16, 2, -1, 1, 10.0))
sketch4.addConstraint(Sketcher.Constraint("DistanceY", 20, 2, -1, 1, 3.0))
sketch4.addConstraint(Sketcher.Constraint("DistanceY", -1, 1, 24, 2, 4.0))
sketch4.addConstraint(Sketcher.Constraint("DistanceY", -1, 1, 28, 2, 11.0))
sketch4.addConstraint(Sketcher.Constraint("DistanceY", -1, 1, 32, 2, 18.0))
sketch4.addConstraint(Sketcher.Constraint("DistanceY", -1, 1, 36, 2, 25.0))
sketch4.setExpression("Constraints[107]", "Params.sketch4_width")
sketch4.setExpression("Constraints[108]", "Params.sketch4_height")
pocket3 = body.newObject("PartDesign::Pocket", "Pocket002")
pocket3.Profile = sketch4
pocket3.setExpression("Length", "Params.pocket3_length")

doc.recompute()
